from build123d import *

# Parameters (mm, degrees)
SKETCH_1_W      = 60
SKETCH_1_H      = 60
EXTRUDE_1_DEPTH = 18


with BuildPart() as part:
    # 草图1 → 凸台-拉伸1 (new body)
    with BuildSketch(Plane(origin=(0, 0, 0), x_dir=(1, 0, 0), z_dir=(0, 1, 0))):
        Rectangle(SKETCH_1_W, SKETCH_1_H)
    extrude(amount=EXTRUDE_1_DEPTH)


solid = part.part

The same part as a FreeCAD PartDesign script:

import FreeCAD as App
import Part
import Sketcher

V = App.Vector
Q = App.Units.Quantity


def add_polygon(sketch, points):
    """Adds a closed chain of lines whose ends are joined by coincident constraints."""
    first, n = sketch.GeometryCount, len(points)
    for a, b in zip(points, points[1:] + points[:1]):
        sketch.addGeometry(Part.LineSegment(App.Vector(*a, 0), App.Vector(*b, 0)), False)
    for i in range(n):
        sketch.addConstraint(Sketcher.Constraint("Coincident", first + i, 2, first + (i + 1) % n, 1))

doc = App.newDocument("Part")
body = doc.addObject("PartDesign::Body", "Body")

# Sketch on XZ plane
sketch1 = body.newObject("Sketcher::SketchObject", "Sketch")
sketch1.AttachmentSupport = (doc.getObject("XZ_Plane"), [""])
sketch1.MapMode = "FlatFace"
add_polygon(sketch1, [(-30, -30), (-30, 30), (30, 30), (30, -30)])  # lines 0-3
sketch1.addConstraint([
    Sketcher.Constraint("Vertical", 0),
    Sketcher.Constraint("Horizontal", 1),
    Sketcher.Constraint("Vertical", 2),
    Sketcher.Constraint("Horizontal", 3),
    Sketcher.Constraint("Symmetric", 0, 2, 2, 2, -1, 1),
    Sketcher.Constraint("Equal", 3, 0),
    Sketcher.Constraint("DistanceX", 1, 1, 1, 2, Q("60 mm")),
])
pad1 = body.newObject("PartDesign::Pad", "Pad")
pad1.Profile = sketch1
pad1.Length = 18
pad1.Reversed = True

doc.recompute()
